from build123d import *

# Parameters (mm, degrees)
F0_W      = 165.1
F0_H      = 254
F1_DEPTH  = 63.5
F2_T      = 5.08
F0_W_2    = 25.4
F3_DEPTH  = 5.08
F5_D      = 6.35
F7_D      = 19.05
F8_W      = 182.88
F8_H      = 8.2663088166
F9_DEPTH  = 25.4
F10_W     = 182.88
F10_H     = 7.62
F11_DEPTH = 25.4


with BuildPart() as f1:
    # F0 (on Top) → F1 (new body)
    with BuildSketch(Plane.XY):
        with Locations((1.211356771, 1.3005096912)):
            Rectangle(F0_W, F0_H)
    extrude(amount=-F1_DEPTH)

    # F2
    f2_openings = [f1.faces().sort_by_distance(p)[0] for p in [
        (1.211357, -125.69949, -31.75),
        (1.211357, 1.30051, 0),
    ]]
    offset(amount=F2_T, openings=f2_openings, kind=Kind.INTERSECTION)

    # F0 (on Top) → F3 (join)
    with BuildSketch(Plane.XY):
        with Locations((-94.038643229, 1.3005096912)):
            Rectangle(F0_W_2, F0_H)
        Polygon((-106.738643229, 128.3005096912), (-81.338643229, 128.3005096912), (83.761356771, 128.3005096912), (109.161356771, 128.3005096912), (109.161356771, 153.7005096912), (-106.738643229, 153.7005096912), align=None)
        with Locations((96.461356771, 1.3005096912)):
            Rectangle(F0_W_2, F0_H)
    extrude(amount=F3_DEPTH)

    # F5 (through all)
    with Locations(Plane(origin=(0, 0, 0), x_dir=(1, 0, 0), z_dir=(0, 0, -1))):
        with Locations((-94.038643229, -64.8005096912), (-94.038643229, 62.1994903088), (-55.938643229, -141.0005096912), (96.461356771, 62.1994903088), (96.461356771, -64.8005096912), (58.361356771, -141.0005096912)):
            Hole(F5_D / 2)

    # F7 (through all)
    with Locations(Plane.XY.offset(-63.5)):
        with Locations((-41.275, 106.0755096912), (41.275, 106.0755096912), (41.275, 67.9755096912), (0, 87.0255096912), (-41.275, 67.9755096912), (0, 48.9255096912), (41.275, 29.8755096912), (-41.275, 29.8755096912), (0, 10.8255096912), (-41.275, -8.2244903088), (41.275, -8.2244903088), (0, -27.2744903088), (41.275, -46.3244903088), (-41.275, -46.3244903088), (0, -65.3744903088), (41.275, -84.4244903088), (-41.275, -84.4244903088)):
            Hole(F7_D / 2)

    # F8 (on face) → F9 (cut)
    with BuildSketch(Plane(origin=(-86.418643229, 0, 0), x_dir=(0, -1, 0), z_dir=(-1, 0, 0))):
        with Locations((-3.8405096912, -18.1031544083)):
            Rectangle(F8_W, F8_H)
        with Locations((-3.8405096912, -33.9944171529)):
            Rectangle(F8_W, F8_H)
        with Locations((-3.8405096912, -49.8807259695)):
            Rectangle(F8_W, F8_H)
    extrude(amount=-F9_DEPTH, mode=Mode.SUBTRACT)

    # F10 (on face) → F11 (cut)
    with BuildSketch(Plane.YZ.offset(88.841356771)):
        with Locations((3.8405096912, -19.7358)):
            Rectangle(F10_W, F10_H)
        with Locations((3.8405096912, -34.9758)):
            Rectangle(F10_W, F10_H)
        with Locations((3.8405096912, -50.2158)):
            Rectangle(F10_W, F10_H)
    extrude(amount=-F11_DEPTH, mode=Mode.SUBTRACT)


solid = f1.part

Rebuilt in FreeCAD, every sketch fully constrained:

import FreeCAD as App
import Part
import Sketcher
Q = App.Units.Quantity


def faces_at(feature, points):
    """Names of the faces that lie closest to the given points."""
    faces = feature.Shape.Faces
    near = lambda p: min(range(len(faces)), key=lambda i: faces[i].distToShape(Part.Vertex(*p))[0])
    return sorted({f"Face{near(p) + 1}" for p in points})

doc = App.newDocument("Part")
body = doc.addObject("PartDesign::Body", "Body")

# Sketch on XY plane
sketch1 = doc.addObject("Sketcher::SketchObject", "Sketch")
body.addObject(sketch1)
sketch1.AttachmentSupport = (doc.XY_Plane, [""])
sketch1.MapMode = "FlatFace"
sketch1.addGeometry(Part.LineSegment(App.Vector(-81, 128, 0), App.Vector(-81, -126, 0)), False)
sketch1.addGeometry(Part.LineSegment(App.Vector(-81, -126, 0), App.Vector(84, -126, 0)), False)
sketch1.addGeometry(Part.LineSegment(App.Vector(84, -126, 0), App.Vector(84, 128, 0)), False)
sketch1.addGeometry(Part.LineSegment(App.Vector(84, 128, 0), App.Vector(-81, 128, 0)), False)
sketch1.addConstraint(Sketcher.Constraint("Coincident", 0, 2, 1, 1))
sketch1.addConstraint(Sketcher.Constraint("Coincident", 1, 2, 2, 1))
sketch1.addConstraint(Sketcher.Constraint("Coincident", 2, 2, 3, 1))
sketch1.addConstraint(Sketcher.Constraint("Coincident", 3, 2, 0, 1))
sketch1.addConstraint(Sketcher.Constraint("Vertical", 0))
sketch1.addConstraint(Sketcher.Constraint("Horizontal", 1))
sketch1.addConstraint(Sketcher.Constraint("Vertical", 2))
sketch1.addConstraint(Sketcher.Constraint("Horizontal", 3))
sketch1.addConstraint(Sketcher.Constraint("DistanceY", 0, 2, 0, 1, Q("10 in")))
sketch1.addConstraint(Sketcher.Constraint("DistanceX", 1, 1, 1, 2, Q("6.5 in")))
sketch1.addConstraint(Sketcher.Constraint("DistanceY", 0, 2, -1, 1, 125.69949))
sketch1.addConstraint(Sketcher.Constraint("DistanceX", 0, 2, -1, 1, 81.338643))
pad1 = doc.addObject("PartDesign::Pad", "Pad")
body.addObject(pad1)
pad1.Profile = sketch1
pad1.Length = Q("2.5 in")
pad1.Reversed = True
doc.recompute()

thickness = doc.addObject("PartDesign::Thickness", "Thickness")
body.addObject(thickness)
thickness.Base = (pad1, faces_at(pad1, [(1.211, -125.699, -31.75), (1.211, 1.301, 0)]))
thickness.Value = Q("0.2 in")
thickness.Reversed = False
thickness.Join = "Intersection"

# Sketch on XY plane
sketch2 = doc.addObject("Sketcher::SketchObject", "Sketch001")
body.addObject(sketch2)
sketch2.AttachmentSupport = (doc.XY_Plane, [""])
sketch2.MapMode = "FlatFace"
sketch2.addGeometry(Part.LineSegment(App.Vector(-107, -126, 0), App.Vector(-81, -126, 0)), False)
sketch2.addGeometry(Part.LineSegment(App.Vector(-81, -126, 0), App.Vector(-81, 128, 0)), False)
sketch2.addGeometry(Part.LineSegment(App.Vector(-81, 128, 0), App.Vector(84, 128, 0)), False)
sketch2.addGeometry(Part.LineSegment(App.Vector(84, 128, 0), App.Vector(84, -126, 0)), False)
sketch2.addGeometry(Part.LineSegment(App.Vector(84, -126, 0), App.Vector(109, -126, 0)), False)
sketch2.addGeometry(Part.LineSegment(App.Vector(109, -126, 0), App.Vector(109, 154, 0)), False)
sketch2.addGeometry(Part.LineSegment(App.Vector(109, 154, 0), App.Vector(-107, 154, 0)), False)
sketch2.addGeometry(Part.LineSegment(App.Vector(-107, 154, 0), App.Vector(-107, -126, 0)), False)
sketch2.addConstraint(Sketcher.Constraint("Coincident", 0, 2, 1, 1))
sketch2.addConstraint(Sketcher.Constraint("Coincident", 1, 2, 2, 1))
sketch2.addConstraint(Sketcher.Constraint("Coincident", 2, 2, 3, 1))
sketch2.addConstraint(Sketcher.Constraint("Coincident", 3, 2, 4, 1))
sketch2.addConstraint(Sketcher.Constraint("Coincident", 4, 2, 5, 1))
sketch2.addConstraint(Sketcher.Constraint("Coincident", 5, 2, 6, 1))
sketch2.addConstraint(Sketcher.Constraint("Coincident", 6, 2, 7, 1))
sketch2.addConstraint(Sketcher.Constraint("Coincident", 7, 2, 0, 1))
sketch2.addConstraint(Sketcher.Constraint("Horizontal", 0))
sketch2.addConstraint(Sketcher.Constraint("Vertical", 1))
sketch2.addConstraint(Sketcher.Constraint("Horizontal", 2))
sketch2.addConstraint(Sketcher.Constraint("Vertical", 3))
sketch2.addConstraint(Sketcher.Constraint("Horizontal", 4))
sketch2.addConstraint(Sketcher.Constraint("Vertical", 5))
sketch2.addConstraint(Sketcher.Constraint("Horizontal", 6))
sketch2.addConstraint(Sketcher.Constraint("Vertical", 7))
sketch2.addConstraint(Sketcher.Constraint("Horizontal", 0, 2, 3, 2))
sketch2.addConstraint(Sketcher.Constraint("Equal", 0, 4))
sketch2.addConstraint(Sketcher.Constraint("DistanceX", 0, 1, 0, 2, Q("1 in")))
sketch2.addConstraint(Sketcher.Constraint("DistanceY", 1, 1, 1, 2, Q("10 in")))
sketch2.addConstraint(Sketcher.Constraint("DistanceY", 5, 1, 5, 2, Q("11 in")))
sketch2.addConstraint(Sketcher.Constraint("DistanceX", 2, 1, 2, 2, Q("6.5 in")))
sketch2.addConstraint(Sketcher.Constraint("DistanceY", 0, 2, -1, 1, 125.69949))
sketch2.addConstraint(Sketcher.Constraint("DistanceX", 0, 2, -1, 1, 81.338643))
pad2 = doc.addObject("PartDesign::Pad", "Pad001")
body.addObject(pad2)
pad2.Profile = sketch2
pad2.Length = Q("0.2 in")

# Sketch on XY plane
sketch3 = doc.addObject("Sketcher::SketchObject", "Sketch002")
body.addObject(sketch3)
sketch3.AttachmentSupport = (doc.XY_Plane, [""])
sketch3.MapMode = "FlatFace"
sketch3.addGeometry(Part.Circle(App.Vector(-94, 64.8, 0), App.Vector(0, 0, 1), 3.2), False)
sketch3.addGeometry(Part.Circle(App.Vector(-94, -62.2, 0), App.Vector(0, 0, 1), 3.2), False)
sketch3.addGeometry(Part.Circle(App.Vector(-55.9, 141, 0), App.Vector(0, 0, 1), 3.2), False)
sketch3.addGeometry(Part.Circle(App.Vector(96.5, -62.2, 0), App.Vector(0, 0, 1), 3.2), False)
sketch3.addGeometry(Part.Circle(App.Vector(96.5, 64.8, 0), App.Vector(0, 0, 1), 3.2), False)
sketch3.addGeometry(Part.Circle(App.Vector(58.4, 141, 0), App.Vector(0, 0, 1), 3.2), False)
sketch3.addConstraint(Sketcher.Constraint("Equal", 0, 1))
sketch3.addConstraint(Sketcher.Constraint("Equal", 1, 2))
sketch3.addConstraint(Sketcher.Constraint("Equal", 2, 3))
sketch3.addConstraint(Sketcher.Constraint("Equal", 3, 4))
sketch3.addConstraint(Sketcher.Constraint("Equal", 4, 5))
sketch3.addConstraint(Sketcher.Constraint("Horizontal", 1, 3, 3, 3))
sketch3.addConstraint(Sketcher.Constraint("Horizontal", 0, 3, 4, 3))
sketch3.addConstraint(Sketcher.Constraint("Horizontal", 2, 3, 5, 3))
sketch3.addConstraint(Sketcher.Constraint("Vertical", 0, 3, 1, 3))
sketch3.addConstraint(Sketcher.Constraint("Vertical", 3, 3, 4, 3))
sketch3.addConstraint(Sketcher.Constraint("Diameter", 0, Q("0.25 in")))
sketch3.addConstraint(Sketcher.Constraint("DistanceY", 1, 3, 0, 3, Q("5 in")))
sketch3.addConstraint(Sketcher.Constraint("DistanceY", 0, 3, 2, 3, Q("3 in")))
sketch3.addConstraint(Sketcher.Constraint("DistanceX", 2, 3, 3, 3, Q("6 in")))
sketch3.addConstraint(Sketcher.Constraint("DistanceX", 0, 3, 5, 3, Q("6 in")))
sketch3.addConstraint(Sketcher.Constraint("DistanceX", 0, 3, 2, 3, Q("1.5 in")))
sketch3.addConstraint(Sketcher.Constraint("DistanceY", -1, 1, 0, 3, 64.80051))
sketch3.addConstraint(Sketcher.Constraint("DistanceX", 0, 3, -1, 1, 94.038643))
doc.recompute()
hole = doc.addObject("PartDesign::Hole", "Hole")
body.addObject(hole)
hole.Profile = sketch3
hole.ThreadType = "None"
hole.Diameter = Q("0.25 in")
hole.DepthType = "ThroughAll"
hole.Reversed = True

# Sketch on XY plane
sketch4 = doc.addObject("Sketcher::SketchObject", "Sketch003")
body.addObject(sketch4)
sketch4.AttachmentSupport = (doc.XY_Plane, [""])
sketch4.MapMode = "FlatFace"
sketch4.AttachmentOffset = App.Placement(App.Vector(0, 0, -2.5 * 25.4), App.Rotation())
sketch4.addGeometry(Part.Circle(App.Vector(-41, 106, 0), App.Vector(0, 0, 1), 10), False)
sketch4.addGeometry(Part.Circle(App.Vector(41, 106, 0), App.Vector(0, 0, 1), 10), False)
sketch4.addGeometry(Part.Circle(App.Vector(41, 68, 0), App.Vector(0, 0, 1), 10), False)
sketch4.addGeometry(Part.Circle(App.Vector(0, 87, 0), App.Vector(0, 0, 1), 10), False)
sketch4.addGeometry(Part.Circle(App.Vector(-41, 68, 0), App.Vector(0, 0, 1), 10), False)
sketch4.addGeometry(Part.Circle(App.Vector(0, 49, 0), App.Vector(0, 0, 1), 10), False)
sketch4.addGeometry(Part.Circle(App.Vector(41, 30, 0), App.Vector(0, 0, 1), 10), False)
sketch4.addGeometry(Part.Circle(App.Vector(-41, 30, 0), App.Vector(0, 0, 1), 10), False)
sketch4.addGeometry(Part.Circle(App.Vector(0, 11, 0), App.Vector(0, 0, 1), 10), False)
sketch4.addGeometry(Part.Circle(App.Vector(-41, -8, 0), App.Vector(0, 0, 1), 10), False)
sketch4.addGeometry(Part.Circle(App.Vector(41, -8, 0), App.Vector(0, 0, 1), 10), False)
sketch4.addGeometry(Part.Circle(App.Vector(0, -27, 0), App.Vector(0, 0, 1), 10), False)
sketch4.addGeometry(Part.Circle(App.Vector(41, -46, 0), App.Vector(0, 0, 1), 10), False)
sketch4.addGeometry(Part.Circle(App.Vector(-41, -46, 0), App.Vector(0, 0, 1), 10), False)
sketch4.addGeometry(Part.Circle(App.Vector(0, -65, 0), App.Vector(0, 0, 1), 10), False)
sketch4.addGeometry(Part.Circle(App.Vector(41, -84, 0), App.Vector(0, 0, 1), 10), False)
sketch4.addGeometry(Part.Circle(App.Vector(-41, -84, 0), App.Vector(0, 0, 1), 10), False)
sketch4.addConstraint(Sketcher.Constraint("Equal", 0, 1))
sketch4.addConstraint(Sketcher.Constraint("Equal", 1, 2))
sketch4.addConstraint(Sketcher.Constraint("Equal", 2, 3))
sketch4.addConstraint(Sketcher.Constraint("Equal", 3, 4))
sketch4.addConstraint(Sketcher.Constraint("Equal", 4, 5))
sketch4.addConstraint(Sketcher.Constraint("Equal", 5, 6))
sketch4.addConstraint(Sketcher.Constraint("Equal", 6, 7))
sketch4.addConstraint(Sketcher.Constraint("Equal", 7, 8))
sketch4.addConstraint(Sketcher.Constraint("Equal", 8, 9))
sketch4.addConstraint(Sketcher.Constraint("Equal", 9, 10))
sketch4.addConstraint(Sketcher.Constraint("Equal", 10, 11))
sketch4.addConstraint(Sketcher.Constraint("Equal", 11, 12))
sketch4.addConstraint(Sketcher.Constraint("Equal", 12, 13))
sketch4.addConstraint(Sketcher.Constraint("Equal", 13, 14))
sketch4.addConstraint(Sketcher.Constraint("Equal", 14, 15))
sketch4.addConstraint(Sketcher.Constraint("Equal", 15, 16))
sketch4.addConstraint(Sketcher.Constraint("Symmetric", 0, 3, 1, 3, -2))
sketch4.addConstraint(Sketcher.Constraint("Symmetric", 2, 3, 4, 3, -2))
sketch4.addConstraint(Sketcher.Constraint("Symmetric", 6, 3, 7, 3, -2))
sketch4.addConstraint(Sketcher.Constraint("Symmetric", 9, 3, 10, 3, -2))
sketch4.addConstraint(Sketcher.Constraint("Symmetric", 12, 3, 13, 3, -2))
sketch4.addConstraint(Sketcher.Constraint("Symmetric", 15, 3, 16, 3, -2))
sketch4.addConstraint(Sketcher.Constraint("PointOnObject", 3, 3, -2))
sketch4.addConstraint(Sketcher.Constraint("PointOnObject", 5, 3, -2))
sketch4.addConstraint(Sketcher.Constraint("PointOnObject", 8, 3, -2))
sketch4.addConstraint(Sketcher.Constraint("PointOnObject", 11, 3, -2))
sketch4.addConstraint(Sketcher.Constraint("PointOnObject", 14, 3, -2))
sketch4.addConstraint(Sketcher.Constraint("Vertical", 1, 3, 2, 3))
sketch4.addConstraint(Sketcher.Constraint("Vertical", 2, 3, 6, 3))
sketch4.addConstraint(Sketcher.Constraint("Vertical", 7, 3, 9, 3))
sketch4.addConstraint(Sketcher.Constraint("Vertical", 10, 3, 12, 3))
sketch4.addConstraint(Sketcher.Constraint("Vertical", 12, 3, 15, 3))
sketch4.addConstraint(Sketcher.Constraint("Diameter", 0, Q("0.75 in")))
sketch4.addConstraint(Sketcher.Constraint("DistanceY", 6, 3, 1, 3, Q("3 in")))
sketch4.addConstraint(Sketcher.Constraint("DistanceY", 9, 3, 4, 3, Q("3 in")))
sketch4.addConstraint(Sketcher.Constraint("DistanceY", 12, 3, 6, 3, Q("3 in")))
sketch4.addConstraint(Sketcher.Constraint("DistanceY", 15, 3, 10, 3, Q("3 in")))
sketch4.addConstraint(Sketcher.Constraint("DistanceY", 2, 3, 1, 3, Q("1.5 in")))
sketch4.addConstraint(Sketcher.Constraint("DistanceY", 5, 3, 3, 3, Q("1.5 in")))
sketch4.addConstraint(Sketcher.Constraint("DistanceY", 8, 3, 5, 3, Q("1.5 in")))
sketch4.addConstraint(Sketcher.Constraint("DistanceY", 11, 3, 8, 3, Q("1.5 in")))
sketch4.addConstraint(Sketcher.Constraint("DistanceY", 14, 3, 11, 3, Q("1.5 in")))
sketch4.addConstraint(Sketcher.Constraint("DistanceX", 0, 3, 1, 3, Q("3.25 in")))
sketch4.addConstraint(Sketcher.Constraint("DistanceY", 3, 3, 0, 3, Q("0.75 in")))
sketch4.addConstraint(Sketcher.Constraint("DistanceY", -1, 1, 0, 3, 106.07551))
doc.recompute()
hole2 = doc.addObject("PartDesign::Hole", "Hole001")
body.addObject(hole2)
hole2.Profile = sketch4
hole2.ThreadType = "None"
hole2.Diameter = Q("0.75 in")
hole2.DepthType = "ThroughAll"

# Sketch on YZ plane
sketch5 = doc.addObject("Sketcher::SketchObject", "Sketch004")
body.addObject(sketch5)
sketch5.AttachmentSupport = (doc.YZ_Plane, [""])
sketch5.MapMode = "FlatFace"
sketch5.AttachmentOffset = App.Placement(App.Vector(0, 0, -86.418643), App.Rotation())
sketch5.addGeometry(Part.LineSegment(App.Vector(95, -14, 0), App.Vector(95, -22, 0)), False)
sketch5.addGeometry(Part.LineSegment(App.Vector(95, -22, 0), App.Vector(-88, -22, 0)), False)
sketch5.addGeometry(Part.LineSegment(App.Vector(-88, -22, 0), App.Vector(-88, -14, 0)), False)
sketch5.addGeometry(Part.LineSegment(App.Vector(-88, -14, 0), App.Vector(95, -14, 0)), False)
sketch5.addGeometry(Part.LineSegment(App.Vector(95, -30, 0), App.Vector(95, -38, 0)), False)
sketch5.addGeometry(Part.LineSegment(App.Vector(95, -38, 0), App.Vector(-88, -38, 0)), False)
sketch5.addGeometry(Part.LineSegment(App.Vector(-88, -38, 0), App.Vector(-88, -30, 0)), False)
sketch5.addGeometry(Part.LineSegment(App.Vector(-88, -30, 0), App.Vector(95, -30, 0)), False)
sketch5.addGeometry(Part.LineSegment(App.Vector(95, -46, 0), App.Vector(95, -54, 0)), False)
sketch5.addGeometry(Part.LineSegment(App.Vector(95, -54, 0), App.Vector(-88, -54, 0)), False)
sketch5.addGeometry(Part.LineSegment(App.Vector(-88, -54, 0), App.Vector(-88, -46, 0)), False)
sketch5.addGeometry(Part.LineSegment(App.Vector(-88, -46, 0), App.Vector(95, -46, 0)), False)
sketch5.addConstraint(Sketcher.Constraint("Coincident", 0, 2, 1, 1))
sketch5.addConstraint(Sketcher.Constraint("Coincident", 1, 2, 2, 1))
sketch5.addConstraint(Sketcher.Constraint("Coincident", 2, 2, 3, 1))
sketch5.addConstraint(Sketcher.Constraint("Coincident", 3, 2, 0, 1))
sketch5.addConstraint(Sketcher.Constraint("Coincident", 4, 2, 5, 1))
sketch5.addConstraint(Sketcher.Constraint("Coincident", 5, 2, 6, 1))
sketch5.addConstraint(Sketcher.Constraint("Coincident", 6, 2, 7, 1))
sketch5.addConstraint(Sketcher.Constraint("Coincident", 7, 2, 4, 1))
sketch5.addConstraint(Sketcher.Constraint("Coincident", 8, 2, 9, 1))
sketch5.addConstraint(Sketcher.Constraint("Coincident", 9, 2, 10, 1))
sketch5.addConstraint(Sketcher.Constraint("Coincident", 10, 2, 11, 1))
sketch5.addConstraint(Sketcher.Constraint("Coincident", 11, 2, 8, 1))
sketch5.addConstraint(Sketcher.Constraint("Vertical", 0))
sketch5.addConstraint(Sketcher.Constraint("Horizontal", 1))
sketch5.addConstraint(Sketcher.Constraint("Vertical", 2))
sketch5.addConstraint(Sketcher.Constraint("Horizontal", 3))
sketch5.addConstraint(Sketcher.Constraint("Vertical", 4))
sketch5.addConstraint(Sketcher.Constraint("Horizontal", 5))
sketch5.addConstraint(Sketcher.Constraint("Vertical", 6))
sketch5.addConstraint(Sketcher.Constraint("Horizontal", 7))
sketch5.addConstraint(Sketcher.Constraint("Vertical", 8))
sketch5.addConstraint(Sketcher.Constraint("Horizontal", 9))
sketch5.addConstraint(Sketcher.Constraint("Vertical", 10))
sketch5.addConstraint(Sketcher.Constraint("Horizontal", 11))
sketch5.addConstraint(Sketcher.Constraint("Vertical", 3, 2, 4, 2))
sketch5.addConstraint(Sketcher.Constraint("Vertical", 2, 2, 5, 2))
sketch5.addConstraint(Sketcher.Constraint("Vertical", 7, 2, 8, 2))
sketch5.addConstraint(Sketcher.Constraint("Vertical", 6, 2, 9, 2))
sketch5.addConstraint(Sketcher.Constraint("Equal", 2, 4))
sketch5.addConstraint(Sketcher.Constraint("Equal", 6, 8))
sketch5.addConstraint(Sketcher.Constraint("DistanceX", 1, 2, 1, 1, Q("7.2 in")))
sketch5.addConstraint(Sketcher.Constraint("DistanceY", 10, 2, 5, 2, Q("0.3 in")))
sketch5.addConstraint(Sketcher.Constraint("DistanceY", 2, 2, -1, 1, Q("0.55 in")))
sketch5.addConstraint(Sketcher.Constraint("DistanceY", 0, 2, 0, 1, 8.266309))
sketch5.addConstraint(Sketcher.Constraint("DistanceX", -1, 1, 0, 2, 95.28051))
sketch5.addConstraint(Sketcher.Constraint("DistanceY", 4, 2, -1, 1, 38.127572))
pocket1 = doc.addObject("PartDesign::Pocket", "Pocket")
body.addObject(pocket1)
pocket1.Profile = sketch5
pocket1.Length = Q("1 in")
pocket1.Reversed = True

# Sketch on YZ plane
sketch6 = doc.addObject("Sketcher::SketchObject", "Sketch005")
body.addObject(sketch6)
sketch6.AttachmentSupport = (doc.YZ_Plane, [""])
sketch6.MapMode = "FlatFace"
sketch6.AttachmentOffset = App.Placement(App.Vector(0, 0, 88.841357), App.Rotation())
sketch6.addGeometry(Part.LineSegment(App.Vector(-88, -16, 0), App.Vector(-88, -24, 0)), False)
sketch6.addGeometry(Part.LineSegment(App.Vector(-88, -24, 0), App.Vector(95, -24, 0)), False)
sketch6.addGeometry(Part.LineSegment(App.Vector(95, -24, 0), App.Vector(95, -16, 0)), False)
sketch6.addGeometry(Part.LineSegment(App.Vector(95, -16, 0), App.Vector(-88, -16, 0)), False)
sketch6.addGeometry(Part.LineSegment(App.Vector(-88, -31, 0), App.Vector(-88, -39, 0)), False)
sketch6.addGeometry(Part.LineSegment(App.Vector(-88, -39, 0), App.Vector(95, -39, 0)), False)
sketch6.addGeometry(Part.LineSegment(App.Vector(95, -39, 0), App.Vector(95, -31, 0)), False)
sketch6.addGeometry(Part.LineSegment(App.Vector(95, -31, 0), App.Vector(-88, -31, 0)), False)
sketch6.addGeometry(Part.LineSegment(App.Vector(-88, -46, 0), App.Vector(-88, -54, 0)), False)
sketch6.addGeometry(Part.LineSegment(App.Vector(-88, -54, 0), App.Vector(95, -54, 0)), False)
sketch6.addGeometry(Part.LineSegment(App.Vector(95, -54, 0), App.Vector(95, -46, 0)), False)
sketch6.addGeometry(Part.LineSegment(App.Vector(95, -46, 0), App.Vector(-88, -46, 0)), False)
sketch6.addConstraint(Sketcher.Constraint("Coincident", 0, 2, 1, 1))
sketch6.addConstraint(Sketcher.Constraint("Coincident", 1, 2, 2, 1))
sketch6.addConstraint(Sketcher.Constraint("Coincident", 2, 2, 3, 1))
sketch6.addConstraint(Sketcher.Constraint("Coincident", 3, 2, 0, 1))
sketch6.addConstraint(Sketcher.Constraint("Coincident", 4, 2, 5, 1))
sketch6.addConstraint(Sketcher.Constraint("Coincident", 5, 2, 6, 1))
sketch6.addConstraint(Sketcher.Constraint("Coincident", 6, 2, 7, 1))
sketch6.addConstraint(Sketcher.Constraint("Coincident", 7, 2, 4, 1))
sketch6.addConstraint(Sketcher.Constraint("Coincident", 8, 2, 9, 1))
sketch6.addConstraint(Sketcher.Constraint("Coincident", 9, 2, 10, 1))
sketch6.addConstraint(Sketcher.Constraint("Coincident", 10, 2, 11, 1))
sketch6.addConstraint(Sketcher.Constraint("Coincident", 11, 2, 8, 1))
sketch6.addConstraint(Sketcher.Constraint("Vertical", 0))
sketch6.addConstraint(Sketcher.Constraint("Horizontal", 1))
sketch6.addConstraint(Sketcher.Constraint("Vertical", 2))
sketch6.addConstraint(Sketcher.Constraint("Horizontal", 3))
sketch6.addConstraint(Sketcher.Constraint("Vertical", 4))
sketch6.addConstraint(Sketcher.Constraint("Horizontal", 5))
sketch6.addConstraint(Sketcher.Constraint("Vertical", 6))
sketch6.addConstraint(Sketcher.Constraint("Horizontal", 7))
sketch6.addConstraint(Sketcher.Constraint("Vertical", 8))
sketch6.addConstraint(Sketcher.Constraint("Horizontal", 9))
sketch6.addConstraint(Sketcher.Constraint("Vertical", 10))
sketch6.addConstraint(Sketcher.Constraint("Horizontal", 11))
sketch6.addConstraint(Sketcher.Constraint("Vertical", 3, 2, 4, 2))
sketch6.addConstraint(Sketcher.Constraint("Vertical", 2, 2, 5, 2))
sketch6.addConstraint(Sketcher.Constraint("Vertical", 7, 2, 8, 2))
sketch6.addConstraint(Sketcher.Constraint("Vertical", 6, 2, 9, 2))
sketch6.addConstraint(Sketcher.Constraint("Equal", 2, 4))
sketch6.addConstraint(Sketcher.Constraint("Equal", 6, 8))
sketch6.addConstraint(Sketcher.Constraint("DistanceX", 1, 1, 1, 2, Q("7.2 in")))
sketch6.addConstraint(Sketcher.Constraint("DistanceY", 0, 2, 0, 1, Q("0.3 in")))
sketch6.addConstraint(Sketcher.Constraint("DistanceY", 4, 2, 0, 2, Q("0.6 in")))
sketch6.addConstraint(Sketcher.Constraint("DistanceY", 8, 2, 4, 2, Q("0.6 in")))
sketch6.addConstraint(Sketcher.Constraint("DistanceY", 0, 2, -1, 1, Q("0.927 in")))
sketch6.addConstraint(Sketcher.Constraint("DistanceX", 0, 2, -1, 1, 87.59949))
pocket2 = doc.addObject("PartDesign::Pocket", "Pocket001")
body.addObject(pocket2)
pocket2.Profile = sketch6
pocket2.Length = Q("1 in")

doc.recompute()
